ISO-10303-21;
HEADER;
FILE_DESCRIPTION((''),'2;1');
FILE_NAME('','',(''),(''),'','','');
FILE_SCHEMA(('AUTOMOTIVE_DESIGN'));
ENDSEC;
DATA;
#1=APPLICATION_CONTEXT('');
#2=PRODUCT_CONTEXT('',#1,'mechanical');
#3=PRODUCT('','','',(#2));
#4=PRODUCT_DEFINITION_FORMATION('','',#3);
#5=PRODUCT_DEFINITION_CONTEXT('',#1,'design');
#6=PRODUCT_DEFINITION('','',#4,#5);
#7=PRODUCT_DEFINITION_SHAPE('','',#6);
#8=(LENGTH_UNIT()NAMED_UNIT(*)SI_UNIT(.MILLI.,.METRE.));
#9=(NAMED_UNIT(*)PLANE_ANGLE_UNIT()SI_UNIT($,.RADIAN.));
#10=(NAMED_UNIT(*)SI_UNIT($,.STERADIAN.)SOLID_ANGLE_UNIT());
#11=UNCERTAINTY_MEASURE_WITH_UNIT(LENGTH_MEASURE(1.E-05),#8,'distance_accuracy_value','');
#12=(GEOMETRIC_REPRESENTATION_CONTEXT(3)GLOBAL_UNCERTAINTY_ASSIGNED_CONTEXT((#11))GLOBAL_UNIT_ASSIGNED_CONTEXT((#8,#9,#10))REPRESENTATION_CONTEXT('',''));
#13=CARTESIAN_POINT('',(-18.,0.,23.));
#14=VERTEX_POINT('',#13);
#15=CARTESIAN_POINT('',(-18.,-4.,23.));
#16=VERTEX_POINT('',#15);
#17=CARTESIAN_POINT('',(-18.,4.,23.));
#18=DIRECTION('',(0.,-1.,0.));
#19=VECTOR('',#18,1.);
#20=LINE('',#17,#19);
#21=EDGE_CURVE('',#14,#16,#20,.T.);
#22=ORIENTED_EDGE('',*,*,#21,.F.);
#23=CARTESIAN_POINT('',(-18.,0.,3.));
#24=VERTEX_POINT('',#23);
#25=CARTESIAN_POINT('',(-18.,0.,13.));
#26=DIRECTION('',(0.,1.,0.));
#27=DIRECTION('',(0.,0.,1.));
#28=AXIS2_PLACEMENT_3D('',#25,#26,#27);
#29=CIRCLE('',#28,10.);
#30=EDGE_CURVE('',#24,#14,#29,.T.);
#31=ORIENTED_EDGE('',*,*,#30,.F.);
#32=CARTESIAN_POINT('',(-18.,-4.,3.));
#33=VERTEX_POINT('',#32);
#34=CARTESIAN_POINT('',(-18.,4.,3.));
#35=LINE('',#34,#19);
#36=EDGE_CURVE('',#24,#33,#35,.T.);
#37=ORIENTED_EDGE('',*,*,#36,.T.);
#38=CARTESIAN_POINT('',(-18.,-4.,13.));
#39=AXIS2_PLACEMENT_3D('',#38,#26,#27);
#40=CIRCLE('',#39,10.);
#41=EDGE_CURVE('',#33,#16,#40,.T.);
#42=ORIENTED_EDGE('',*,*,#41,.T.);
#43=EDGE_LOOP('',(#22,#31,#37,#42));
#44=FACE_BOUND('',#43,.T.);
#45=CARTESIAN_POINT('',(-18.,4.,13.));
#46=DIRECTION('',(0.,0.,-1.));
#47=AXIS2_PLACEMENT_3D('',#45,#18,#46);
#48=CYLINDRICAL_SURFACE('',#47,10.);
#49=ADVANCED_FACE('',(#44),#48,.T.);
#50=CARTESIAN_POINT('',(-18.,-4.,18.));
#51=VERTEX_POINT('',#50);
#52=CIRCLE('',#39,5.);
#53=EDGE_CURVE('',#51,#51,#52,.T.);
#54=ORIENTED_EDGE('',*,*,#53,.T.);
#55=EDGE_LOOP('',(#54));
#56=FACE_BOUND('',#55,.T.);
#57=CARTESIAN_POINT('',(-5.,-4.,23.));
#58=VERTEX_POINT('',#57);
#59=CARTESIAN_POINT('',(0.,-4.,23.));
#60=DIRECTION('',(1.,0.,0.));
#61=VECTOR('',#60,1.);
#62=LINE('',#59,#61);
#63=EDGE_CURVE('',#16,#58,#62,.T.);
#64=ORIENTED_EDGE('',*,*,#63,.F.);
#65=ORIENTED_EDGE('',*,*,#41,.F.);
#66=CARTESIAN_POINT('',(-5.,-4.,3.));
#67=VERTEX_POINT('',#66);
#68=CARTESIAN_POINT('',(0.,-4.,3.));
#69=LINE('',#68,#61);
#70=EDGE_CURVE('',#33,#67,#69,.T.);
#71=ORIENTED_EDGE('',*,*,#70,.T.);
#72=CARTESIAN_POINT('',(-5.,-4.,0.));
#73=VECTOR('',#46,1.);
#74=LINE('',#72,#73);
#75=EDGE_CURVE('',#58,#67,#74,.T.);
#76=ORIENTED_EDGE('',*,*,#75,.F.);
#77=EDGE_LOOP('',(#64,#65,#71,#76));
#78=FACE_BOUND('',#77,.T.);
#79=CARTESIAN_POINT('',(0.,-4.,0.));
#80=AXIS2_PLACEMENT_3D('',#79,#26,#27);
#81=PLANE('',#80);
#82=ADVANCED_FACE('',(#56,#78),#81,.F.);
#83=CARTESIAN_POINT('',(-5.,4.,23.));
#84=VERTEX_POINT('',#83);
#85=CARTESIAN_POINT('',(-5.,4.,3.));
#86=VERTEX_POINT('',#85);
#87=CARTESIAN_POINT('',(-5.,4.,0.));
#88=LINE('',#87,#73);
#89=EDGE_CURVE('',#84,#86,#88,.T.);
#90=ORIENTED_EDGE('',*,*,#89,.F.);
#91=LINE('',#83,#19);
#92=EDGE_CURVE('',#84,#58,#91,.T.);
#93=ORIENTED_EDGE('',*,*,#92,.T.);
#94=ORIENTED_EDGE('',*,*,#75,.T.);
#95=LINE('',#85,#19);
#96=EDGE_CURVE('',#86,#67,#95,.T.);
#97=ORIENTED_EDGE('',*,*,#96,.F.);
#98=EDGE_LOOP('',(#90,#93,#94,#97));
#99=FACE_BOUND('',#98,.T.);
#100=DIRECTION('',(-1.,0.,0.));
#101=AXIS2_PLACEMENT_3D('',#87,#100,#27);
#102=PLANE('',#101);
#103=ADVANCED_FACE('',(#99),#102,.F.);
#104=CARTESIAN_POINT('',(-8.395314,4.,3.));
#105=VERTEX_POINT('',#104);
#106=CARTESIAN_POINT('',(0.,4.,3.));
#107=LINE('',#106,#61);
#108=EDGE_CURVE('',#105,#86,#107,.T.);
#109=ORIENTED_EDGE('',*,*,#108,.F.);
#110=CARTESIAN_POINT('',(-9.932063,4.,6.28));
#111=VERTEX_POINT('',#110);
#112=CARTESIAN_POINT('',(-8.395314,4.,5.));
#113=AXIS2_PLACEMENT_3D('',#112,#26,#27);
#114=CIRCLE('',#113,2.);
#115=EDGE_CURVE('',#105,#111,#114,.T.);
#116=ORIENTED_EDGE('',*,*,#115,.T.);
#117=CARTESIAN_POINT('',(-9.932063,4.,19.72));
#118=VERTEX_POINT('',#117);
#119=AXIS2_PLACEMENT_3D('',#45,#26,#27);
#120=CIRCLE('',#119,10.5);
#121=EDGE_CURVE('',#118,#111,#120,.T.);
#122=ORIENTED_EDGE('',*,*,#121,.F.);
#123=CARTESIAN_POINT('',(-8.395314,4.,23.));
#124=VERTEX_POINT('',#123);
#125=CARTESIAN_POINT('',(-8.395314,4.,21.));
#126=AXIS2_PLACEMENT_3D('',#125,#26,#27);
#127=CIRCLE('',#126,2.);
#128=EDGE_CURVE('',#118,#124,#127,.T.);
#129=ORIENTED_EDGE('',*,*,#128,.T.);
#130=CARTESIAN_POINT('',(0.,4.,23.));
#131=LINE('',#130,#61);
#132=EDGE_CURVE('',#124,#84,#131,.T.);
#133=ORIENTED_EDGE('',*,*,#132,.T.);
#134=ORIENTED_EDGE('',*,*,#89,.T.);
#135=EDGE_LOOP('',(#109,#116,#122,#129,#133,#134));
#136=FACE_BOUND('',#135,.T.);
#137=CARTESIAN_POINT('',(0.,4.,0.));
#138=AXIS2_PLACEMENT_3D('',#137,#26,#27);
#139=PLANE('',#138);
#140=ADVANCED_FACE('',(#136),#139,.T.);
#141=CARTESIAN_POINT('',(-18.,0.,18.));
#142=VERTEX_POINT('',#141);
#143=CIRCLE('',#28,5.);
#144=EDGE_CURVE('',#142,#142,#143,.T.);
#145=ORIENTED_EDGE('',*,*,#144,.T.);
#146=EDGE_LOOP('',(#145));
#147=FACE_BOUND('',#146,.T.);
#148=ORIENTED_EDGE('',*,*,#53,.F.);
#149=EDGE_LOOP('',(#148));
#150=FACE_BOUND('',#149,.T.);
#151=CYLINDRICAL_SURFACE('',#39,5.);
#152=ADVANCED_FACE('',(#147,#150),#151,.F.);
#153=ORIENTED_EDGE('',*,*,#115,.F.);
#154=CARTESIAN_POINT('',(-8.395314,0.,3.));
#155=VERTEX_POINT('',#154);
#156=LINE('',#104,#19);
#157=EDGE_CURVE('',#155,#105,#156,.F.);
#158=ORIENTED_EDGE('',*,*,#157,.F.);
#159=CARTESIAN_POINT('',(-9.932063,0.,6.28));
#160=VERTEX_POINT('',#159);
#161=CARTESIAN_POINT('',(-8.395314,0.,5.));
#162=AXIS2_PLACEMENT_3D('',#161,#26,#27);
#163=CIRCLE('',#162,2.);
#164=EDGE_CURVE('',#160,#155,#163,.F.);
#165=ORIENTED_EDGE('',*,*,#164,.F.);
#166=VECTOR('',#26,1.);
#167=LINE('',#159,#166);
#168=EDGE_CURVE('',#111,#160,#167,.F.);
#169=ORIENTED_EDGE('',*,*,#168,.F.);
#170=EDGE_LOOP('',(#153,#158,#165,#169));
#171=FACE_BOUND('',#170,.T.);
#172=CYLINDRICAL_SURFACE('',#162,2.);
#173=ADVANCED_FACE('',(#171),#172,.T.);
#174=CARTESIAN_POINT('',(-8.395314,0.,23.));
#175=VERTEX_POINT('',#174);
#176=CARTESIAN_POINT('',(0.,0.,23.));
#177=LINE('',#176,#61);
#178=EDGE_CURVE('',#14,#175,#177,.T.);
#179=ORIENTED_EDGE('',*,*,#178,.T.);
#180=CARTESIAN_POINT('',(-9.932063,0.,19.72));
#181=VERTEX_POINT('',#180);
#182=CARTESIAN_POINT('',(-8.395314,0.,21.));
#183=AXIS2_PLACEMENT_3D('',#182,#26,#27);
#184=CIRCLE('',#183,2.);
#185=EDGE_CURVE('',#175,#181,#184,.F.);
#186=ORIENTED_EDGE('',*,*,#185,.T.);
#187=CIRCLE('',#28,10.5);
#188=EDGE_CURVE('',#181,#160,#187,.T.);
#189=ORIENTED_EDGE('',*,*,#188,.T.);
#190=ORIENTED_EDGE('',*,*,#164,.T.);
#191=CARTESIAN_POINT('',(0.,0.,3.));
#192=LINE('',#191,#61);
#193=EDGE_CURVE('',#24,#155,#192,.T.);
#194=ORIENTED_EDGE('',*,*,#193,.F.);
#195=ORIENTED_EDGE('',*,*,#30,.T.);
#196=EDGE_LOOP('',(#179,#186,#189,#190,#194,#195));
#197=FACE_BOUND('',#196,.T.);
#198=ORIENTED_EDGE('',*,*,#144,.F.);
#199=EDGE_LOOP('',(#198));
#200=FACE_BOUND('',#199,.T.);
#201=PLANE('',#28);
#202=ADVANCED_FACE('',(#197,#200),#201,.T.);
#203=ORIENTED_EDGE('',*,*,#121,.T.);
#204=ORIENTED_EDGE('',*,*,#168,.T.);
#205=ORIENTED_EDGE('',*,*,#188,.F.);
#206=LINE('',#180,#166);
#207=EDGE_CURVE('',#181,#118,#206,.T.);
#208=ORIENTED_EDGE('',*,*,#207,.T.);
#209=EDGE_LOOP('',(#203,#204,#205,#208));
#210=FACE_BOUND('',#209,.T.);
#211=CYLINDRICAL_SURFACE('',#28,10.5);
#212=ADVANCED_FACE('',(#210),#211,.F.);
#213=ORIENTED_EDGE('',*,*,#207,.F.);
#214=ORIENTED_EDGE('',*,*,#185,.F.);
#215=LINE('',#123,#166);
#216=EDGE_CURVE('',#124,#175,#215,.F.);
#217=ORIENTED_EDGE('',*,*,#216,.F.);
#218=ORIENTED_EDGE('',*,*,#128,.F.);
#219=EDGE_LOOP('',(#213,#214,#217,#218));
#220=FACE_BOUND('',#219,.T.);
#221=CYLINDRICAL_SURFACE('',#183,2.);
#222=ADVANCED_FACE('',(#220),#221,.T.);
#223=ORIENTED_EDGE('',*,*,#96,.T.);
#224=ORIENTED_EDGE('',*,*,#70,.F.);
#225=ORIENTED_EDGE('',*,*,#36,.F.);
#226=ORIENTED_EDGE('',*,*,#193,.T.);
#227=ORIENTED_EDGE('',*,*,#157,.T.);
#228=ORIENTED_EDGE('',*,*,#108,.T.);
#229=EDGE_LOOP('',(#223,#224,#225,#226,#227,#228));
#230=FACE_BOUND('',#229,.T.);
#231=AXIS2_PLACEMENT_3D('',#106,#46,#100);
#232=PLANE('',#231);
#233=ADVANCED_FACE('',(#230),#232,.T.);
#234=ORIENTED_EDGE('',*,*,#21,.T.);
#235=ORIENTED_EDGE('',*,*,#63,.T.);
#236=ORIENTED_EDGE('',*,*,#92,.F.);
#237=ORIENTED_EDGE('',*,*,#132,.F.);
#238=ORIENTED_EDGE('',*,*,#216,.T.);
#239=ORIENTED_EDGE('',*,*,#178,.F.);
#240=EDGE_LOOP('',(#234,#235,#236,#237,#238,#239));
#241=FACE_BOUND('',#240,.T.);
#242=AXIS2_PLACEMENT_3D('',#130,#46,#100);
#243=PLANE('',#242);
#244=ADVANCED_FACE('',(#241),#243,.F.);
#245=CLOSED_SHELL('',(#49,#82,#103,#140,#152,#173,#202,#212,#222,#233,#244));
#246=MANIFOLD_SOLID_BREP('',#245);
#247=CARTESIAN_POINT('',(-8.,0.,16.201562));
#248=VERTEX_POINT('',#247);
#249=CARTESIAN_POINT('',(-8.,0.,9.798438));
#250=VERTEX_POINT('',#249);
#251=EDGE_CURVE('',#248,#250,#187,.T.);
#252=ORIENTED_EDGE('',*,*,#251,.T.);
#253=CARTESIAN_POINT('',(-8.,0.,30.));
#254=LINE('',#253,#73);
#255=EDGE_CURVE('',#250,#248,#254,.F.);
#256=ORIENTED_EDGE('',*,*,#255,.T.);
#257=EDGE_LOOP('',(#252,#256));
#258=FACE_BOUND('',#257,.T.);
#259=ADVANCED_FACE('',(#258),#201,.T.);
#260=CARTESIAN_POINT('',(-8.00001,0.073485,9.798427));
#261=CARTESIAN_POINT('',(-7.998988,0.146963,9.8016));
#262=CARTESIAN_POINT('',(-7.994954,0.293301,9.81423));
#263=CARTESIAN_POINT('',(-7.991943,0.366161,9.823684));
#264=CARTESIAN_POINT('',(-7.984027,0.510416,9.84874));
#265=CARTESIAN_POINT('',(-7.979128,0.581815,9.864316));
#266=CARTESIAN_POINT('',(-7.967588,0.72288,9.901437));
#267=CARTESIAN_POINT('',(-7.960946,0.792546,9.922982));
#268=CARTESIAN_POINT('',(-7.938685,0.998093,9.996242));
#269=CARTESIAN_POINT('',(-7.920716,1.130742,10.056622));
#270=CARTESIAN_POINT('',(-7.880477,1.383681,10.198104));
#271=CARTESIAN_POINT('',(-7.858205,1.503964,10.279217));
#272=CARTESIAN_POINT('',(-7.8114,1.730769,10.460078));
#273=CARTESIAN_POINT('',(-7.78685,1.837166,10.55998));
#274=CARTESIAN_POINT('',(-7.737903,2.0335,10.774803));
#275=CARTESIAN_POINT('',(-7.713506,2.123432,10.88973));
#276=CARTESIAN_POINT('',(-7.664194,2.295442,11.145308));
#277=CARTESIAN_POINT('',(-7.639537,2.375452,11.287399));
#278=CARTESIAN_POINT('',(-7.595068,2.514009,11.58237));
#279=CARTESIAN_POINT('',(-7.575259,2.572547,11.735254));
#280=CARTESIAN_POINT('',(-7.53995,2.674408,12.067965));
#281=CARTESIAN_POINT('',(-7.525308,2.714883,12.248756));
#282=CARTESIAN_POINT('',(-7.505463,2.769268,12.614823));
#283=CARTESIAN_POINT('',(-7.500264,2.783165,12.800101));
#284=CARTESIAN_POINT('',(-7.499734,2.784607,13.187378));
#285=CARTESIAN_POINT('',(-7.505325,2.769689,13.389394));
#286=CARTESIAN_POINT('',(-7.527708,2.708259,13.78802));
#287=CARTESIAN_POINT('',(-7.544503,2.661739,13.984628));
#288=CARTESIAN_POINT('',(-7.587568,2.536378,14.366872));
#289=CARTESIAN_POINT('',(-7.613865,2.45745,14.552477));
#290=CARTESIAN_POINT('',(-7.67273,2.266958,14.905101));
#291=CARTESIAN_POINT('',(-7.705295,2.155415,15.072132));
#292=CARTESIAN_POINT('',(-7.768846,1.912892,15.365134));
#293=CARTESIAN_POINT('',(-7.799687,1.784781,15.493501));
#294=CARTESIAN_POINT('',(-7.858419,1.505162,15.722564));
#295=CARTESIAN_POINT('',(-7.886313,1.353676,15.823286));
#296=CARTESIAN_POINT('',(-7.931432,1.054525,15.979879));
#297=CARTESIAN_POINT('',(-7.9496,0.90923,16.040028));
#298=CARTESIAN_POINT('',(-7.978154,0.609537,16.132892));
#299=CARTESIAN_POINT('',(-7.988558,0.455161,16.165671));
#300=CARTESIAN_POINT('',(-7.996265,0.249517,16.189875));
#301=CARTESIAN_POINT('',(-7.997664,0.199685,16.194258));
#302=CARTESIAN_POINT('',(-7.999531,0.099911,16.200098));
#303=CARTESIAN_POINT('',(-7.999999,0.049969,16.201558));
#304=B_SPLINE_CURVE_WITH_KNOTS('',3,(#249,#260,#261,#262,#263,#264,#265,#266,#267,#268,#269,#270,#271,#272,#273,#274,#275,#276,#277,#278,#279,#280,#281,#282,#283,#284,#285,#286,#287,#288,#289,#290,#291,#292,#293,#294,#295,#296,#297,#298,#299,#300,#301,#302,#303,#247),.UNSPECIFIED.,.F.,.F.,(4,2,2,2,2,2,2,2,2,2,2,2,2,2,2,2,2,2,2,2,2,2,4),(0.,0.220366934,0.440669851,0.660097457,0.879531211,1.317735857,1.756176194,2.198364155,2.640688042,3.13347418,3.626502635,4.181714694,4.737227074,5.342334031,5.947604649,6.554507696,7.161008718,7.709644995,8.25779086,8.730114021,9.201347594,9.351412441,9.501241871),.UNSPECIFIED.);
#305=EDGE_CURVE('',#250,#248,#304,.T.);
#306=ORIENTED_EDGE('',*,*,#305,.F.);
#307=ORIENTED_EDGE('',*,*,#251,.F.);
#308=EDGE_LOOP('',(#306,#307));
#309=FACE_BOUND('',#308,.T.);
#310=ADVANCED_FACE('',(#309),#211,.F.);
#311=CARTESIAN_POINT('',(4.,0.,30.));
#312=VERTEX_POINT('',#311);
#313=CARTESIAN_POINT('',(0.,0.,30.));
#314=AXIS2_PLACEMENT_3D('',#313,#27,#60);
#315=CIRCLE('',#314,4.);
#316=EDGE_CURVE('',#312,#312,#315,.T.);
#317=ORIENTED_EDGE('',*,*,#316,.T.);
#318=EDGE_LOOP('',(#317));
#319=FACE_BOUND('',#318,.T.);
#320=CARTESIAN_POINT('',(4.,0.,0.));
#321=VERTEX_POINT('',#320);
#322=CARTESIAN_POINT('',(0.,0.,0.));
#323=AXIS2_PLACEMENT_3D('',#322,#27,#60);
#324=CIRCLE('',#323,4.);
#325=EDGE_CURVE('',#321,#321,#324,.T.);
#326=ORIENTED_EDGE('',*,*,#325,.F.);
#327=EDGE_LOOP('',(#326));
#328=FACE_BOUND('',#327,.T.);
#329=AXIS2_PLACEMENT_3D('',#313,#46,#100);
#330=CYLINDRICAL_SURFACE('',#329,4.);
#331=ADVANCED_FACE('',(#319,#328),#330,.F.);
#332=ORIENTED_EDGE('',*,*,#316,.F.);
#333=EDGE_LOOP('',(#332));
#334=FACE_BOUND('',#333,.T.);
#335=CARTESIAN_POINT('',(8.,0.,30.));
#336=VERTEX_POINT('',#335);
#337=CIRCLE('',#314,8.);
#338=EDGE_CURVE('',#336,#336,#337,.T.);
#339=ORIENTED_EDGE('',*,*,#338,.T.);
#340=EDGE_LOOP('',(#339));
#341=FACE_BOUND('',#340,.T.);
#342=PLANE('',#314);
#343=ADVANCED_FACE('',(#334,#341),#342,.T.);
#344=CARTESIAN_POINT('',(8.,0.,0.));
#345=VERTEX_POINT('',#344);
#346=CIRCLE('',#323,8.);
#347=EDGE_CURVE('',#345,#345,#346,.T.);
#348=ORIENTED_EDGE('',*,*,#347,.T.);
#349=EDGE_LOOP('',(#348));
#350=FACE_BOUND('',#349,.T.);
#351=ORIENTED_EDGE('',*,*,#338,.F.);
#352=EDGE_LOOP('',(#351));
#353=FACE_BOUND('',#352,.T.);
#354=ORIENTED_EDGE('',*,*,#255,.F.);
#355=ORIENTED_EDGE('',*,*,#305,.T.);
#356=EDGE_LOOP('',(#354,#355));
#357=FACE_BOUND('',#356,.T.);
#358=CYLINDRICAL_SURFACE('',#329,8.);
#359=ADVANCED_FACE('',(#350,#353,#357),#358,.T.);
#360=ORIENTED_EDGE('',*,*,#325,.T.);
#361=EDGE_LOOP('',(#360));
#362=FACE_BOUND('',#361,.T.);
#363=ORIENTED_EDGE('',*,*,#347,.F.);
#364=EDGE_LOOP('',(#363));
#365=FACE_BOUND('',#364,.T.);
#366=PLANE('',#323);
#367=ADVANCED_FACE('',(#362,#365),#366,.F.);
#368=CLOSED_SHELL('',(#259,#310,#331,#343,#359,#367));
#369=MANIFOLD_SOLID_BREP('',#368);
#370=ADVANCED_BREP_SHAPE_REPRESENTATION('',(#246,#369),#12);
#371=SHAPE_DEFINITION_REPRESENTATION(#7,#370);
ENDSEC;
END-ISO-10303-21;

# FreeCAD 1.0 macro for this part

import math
import FreeCAD as App
import Part
import Sketcher
from FreeCAD import Vector


def edges_at(feature, points):
    """Names of the edges that pass closest to the given points."""
    edges = feature.Shape.Edges
    near = lambda p: min(range(len(edges)), key=lambda i: edges[i].distToShape(Part.Vertex(*p))[0])
    return sorted({f"Edge{near(p) + 1}" for p in points})

doc = App.newDocument("Part")
params = doc.addObject("Spreadsheet::Sheet", "Params")
for row, (alias, value) in enumerate([
    ("sketch1_diameter", "16 mm"),
    ("sketch1_diameter2", "8 mm"),
    ("pad1_length", "30 mm"),
    ("sketch2_radius", "10 mm"),
    ("sketch2_width", "13 mm"),
    ("pad2_length", "8 mm"),
    ("sketch3_diameter", "21 mm"),
    ("pad3_length", "4 mm"),
    ("fillet_radius", "2 mm"),
    ("sketch4_diameter", "10 mm"),
    ("pocket1_length", "4 mm"),
], start=1):
    params.set(f"A{row}", alias)
    params.set(f"B{row}", "=" + value)
    params.setAlias(f"B{row}", alias)

body = doc.addObject("PartDesign::Body", "Body")

# Sketch on XY plane
sketch1 = doc.addObject("Sketcher::SketchObject", "Sketch")
body.addObject(sketch1)
sketch1.AttachmentSupport = (doc.XY_Plane, [""])
sketch1.MapMode = "FlatFace"
sketch1.addGeometry(Part.Circle(Vector(0, 0, 0), Vector(0, 0, 1), 8), False)
sketch1.addGeometry(Part.Circle(Vector(0, 0, 0), Vector(0, 0, 1), 4), False)
sketch1.addConstraint(Sketcher.Constraint("Coincident", 0, 3, -1, 1))
sketch1.addConstraint(Sketcher.Constraint("Coincident", 1, 3, -1, 1))
sketch1.addConstraint(Sketcher.Constraint("Diameter", 0, 16.0))
sketch1.addConstraint(Sketcher.Constraint("Diameter", 1, 8.0))
sketch1.setExpression("Constraints[2]", "Params.sketch1_diameter")
sketch1.setExpression("Constraints[3]", "Params.sketch1_diameter2")
pad1 = doc.addObject("PartDesign::Pad", "Pad")
body.addObject(pad1)
pad1.Profile = sketch1
pad1.setExpression("Length", "Params.pad1_length")
body2 = doc.addObject("PartDesign::Body", "Body001")

# Sketch on XZ plane
sketch2 = doc.addObject("Sketcher::SketchObject", "Sketch001")
body2.addObject(sketch2)
sketch2.AttachmentSupport = (doc.getObject("XZ_Plane001"), [""])
sketch2.MapMode = "FlatFace"
sketch2.addGeometry(Part.LineSegment(Vector(-5, 3, 0), Vector(-18, 3, 0)), False)
sketch2.addGeometry(Part.ArcOfCircle(Part.Circle(Vector(-18, 13, 0), Vector(0, 0, 1), 10), math.radians(90), math.radians(270)), False)
sketch2.addGeometry(Part.LineSegment(Vector(-18, 23, 0), Vector(-5, 23, 0)), False)
sketch2.addGeometry(Part.LineSegment(Vector(-5, 23, 0), Vector(-5, 3, 0)), False)
sketch2.addConstraint(Sketcher.Constraint("Tangent", 0, 2, 1, 2))
sketch2.addConstraint(Sketcher.Constraint("Tangent", 1, 1, 2, 1))
sketch2.addConstraint(Sketcher.Constraint("Coincident", 2, 2, 3, 1))
sketch2.addConstraint(Sketcher.Constraint("Coincident", 3, 2, 0, 1))
sketch2.addConstraint(Sketcher.Constraint("Horizontal", 0))
sketch2.addConstraint(Sketcher.Constraint("Horizontal", 2))
sketch2.addConstraint(Sketcher.Constraint("Vertical", 3))
sketch2.addConstraint(Sketcher.Constraint("Radius", 1, 10.0))
sketch2.addConstraint(Sketcher.Constraint("DistanceX", 0, 2, 0, 1, 13.0))
sketch2.addConstraint(Sketcher.Constraint("DistanceX", 1, 3, -1, 1, 18.0))
sketch2.addConstraint(Sketcher.Constraint("DistanceY", -1, 1, 1, 3, 13.0))
sketch2.setExpression("Constraints[7]", "Params.sketch2_radius")
sketch2.setExpression("Constraints[8]", "Params.sketch2_width")
pad2 = doc.addObject("PartDesign::Pad", "Pad001")
body2.addObject(pad2)
pad2.Profile = sketch2
pad2.setExpression("Length", "Params.pad2_length")
pad2.Midplane = True
body3 = doc.addObject("PartDesign::Body", "Body002")

# Sketch on XZ plane
sketch3 = doc.addObject("Sketcher::SketchObject", "Sketch002")
body3.addObject(sketch3)
sketch3.AttachmentSupport = (doc.getObject("XZ_Plane002"), [""])
sketch3.MapMode = "FlatFace"
sketch3.AttachmentOffset = App.Placement(Vector(0, 0, -4), App.Rotation())
sketch3.addGeometry(Part.Circle(Vector(-18, 13, 0), Vector(0, 0, 1), 10), False)
sketch3.addConstraint(Sketcher.Constraint("Diameter", 0, 21.0))
sketch3.addConstraint(Sketcher.Constraint("DistanceX", 0, 3, -1, 1, 18.0))
sketch3.addConstraint(Sketcher.Constraint("DistanceY", -1, 1, 0, 3, 13.0))
sketch3.setExpression("Constraints[0]", "Params.sketch3_diameter")
pad3 = doc.addObject("PartDesign::Pad", "Pad002")
body3.addObject(pad3)
pad3.Profile = sketch3
pad3.setExpression("Length", "Params.pad3_length")
doc.recompute()

body4 = doc.addObject("PartDesign::Body", "Body003")
body4.BaseFeature = body3
boolean = doc.addObject("PartDesign::Boolean", "Boolean")
body.addObject(boolean)
boolean.Type = "Cut"
boolean.addObjects([body4])
doc.recompute()

boolean2 = doc.addObject("PartDesign::Boolean", "Boolean001")
body2.addObject(boolean2)
boolean2.Type = "Cut"
boolean2.addObjects([body3])
doc.recompute()

fillet = doc.addObject("PartDesign::Fillet", "Fillet")
body2.addObject(fillet)
fillet.Base = (boolean2, edges_at(boolean2, [(-14.798, 2, 23), (-14.798, 2, 3)]))
fillet.setExpression("Radius", "Params.fillet_radius")

# Sketch on XZ plane
sketch4 = doc.addObject("Sketcher::SketchObject", "Sketch003")
body2.addObject(sketch4)
sketch4.AttachmentSupport = (doc.getObject("XZ_Plane001"), [""])
sketch4.MapMode = "FlatFace"
sketch4.addGeometry(Part.Circle(Vector(-18, 13, 0), Vector(0, 0, 1), 5), False)
sketch4.addConstraint(Sketcher.Constraint("Diameter", 0, 10.0))
sketch4.addConstraint(Sketcher.Constraint("DistanceX", 0, 3, -1, 1, 18.0))
sketch4.addConstraint(Sketcher.Constraint("DistanceY", -1, 1, 0, 3, 13.0))
sketch4.setExpression("Constraints[0]", "Params.sketch4_diameter")
pocket1 = doc.addObject("PartDesign::Pocket", "Pocket")
body2.addObject(pocket1)
pocket1.Profile = sketch4
pocket1.setExpression("Length", "Params.pocket1_length")
pocket1.Reversed = True

doc.recompute()
